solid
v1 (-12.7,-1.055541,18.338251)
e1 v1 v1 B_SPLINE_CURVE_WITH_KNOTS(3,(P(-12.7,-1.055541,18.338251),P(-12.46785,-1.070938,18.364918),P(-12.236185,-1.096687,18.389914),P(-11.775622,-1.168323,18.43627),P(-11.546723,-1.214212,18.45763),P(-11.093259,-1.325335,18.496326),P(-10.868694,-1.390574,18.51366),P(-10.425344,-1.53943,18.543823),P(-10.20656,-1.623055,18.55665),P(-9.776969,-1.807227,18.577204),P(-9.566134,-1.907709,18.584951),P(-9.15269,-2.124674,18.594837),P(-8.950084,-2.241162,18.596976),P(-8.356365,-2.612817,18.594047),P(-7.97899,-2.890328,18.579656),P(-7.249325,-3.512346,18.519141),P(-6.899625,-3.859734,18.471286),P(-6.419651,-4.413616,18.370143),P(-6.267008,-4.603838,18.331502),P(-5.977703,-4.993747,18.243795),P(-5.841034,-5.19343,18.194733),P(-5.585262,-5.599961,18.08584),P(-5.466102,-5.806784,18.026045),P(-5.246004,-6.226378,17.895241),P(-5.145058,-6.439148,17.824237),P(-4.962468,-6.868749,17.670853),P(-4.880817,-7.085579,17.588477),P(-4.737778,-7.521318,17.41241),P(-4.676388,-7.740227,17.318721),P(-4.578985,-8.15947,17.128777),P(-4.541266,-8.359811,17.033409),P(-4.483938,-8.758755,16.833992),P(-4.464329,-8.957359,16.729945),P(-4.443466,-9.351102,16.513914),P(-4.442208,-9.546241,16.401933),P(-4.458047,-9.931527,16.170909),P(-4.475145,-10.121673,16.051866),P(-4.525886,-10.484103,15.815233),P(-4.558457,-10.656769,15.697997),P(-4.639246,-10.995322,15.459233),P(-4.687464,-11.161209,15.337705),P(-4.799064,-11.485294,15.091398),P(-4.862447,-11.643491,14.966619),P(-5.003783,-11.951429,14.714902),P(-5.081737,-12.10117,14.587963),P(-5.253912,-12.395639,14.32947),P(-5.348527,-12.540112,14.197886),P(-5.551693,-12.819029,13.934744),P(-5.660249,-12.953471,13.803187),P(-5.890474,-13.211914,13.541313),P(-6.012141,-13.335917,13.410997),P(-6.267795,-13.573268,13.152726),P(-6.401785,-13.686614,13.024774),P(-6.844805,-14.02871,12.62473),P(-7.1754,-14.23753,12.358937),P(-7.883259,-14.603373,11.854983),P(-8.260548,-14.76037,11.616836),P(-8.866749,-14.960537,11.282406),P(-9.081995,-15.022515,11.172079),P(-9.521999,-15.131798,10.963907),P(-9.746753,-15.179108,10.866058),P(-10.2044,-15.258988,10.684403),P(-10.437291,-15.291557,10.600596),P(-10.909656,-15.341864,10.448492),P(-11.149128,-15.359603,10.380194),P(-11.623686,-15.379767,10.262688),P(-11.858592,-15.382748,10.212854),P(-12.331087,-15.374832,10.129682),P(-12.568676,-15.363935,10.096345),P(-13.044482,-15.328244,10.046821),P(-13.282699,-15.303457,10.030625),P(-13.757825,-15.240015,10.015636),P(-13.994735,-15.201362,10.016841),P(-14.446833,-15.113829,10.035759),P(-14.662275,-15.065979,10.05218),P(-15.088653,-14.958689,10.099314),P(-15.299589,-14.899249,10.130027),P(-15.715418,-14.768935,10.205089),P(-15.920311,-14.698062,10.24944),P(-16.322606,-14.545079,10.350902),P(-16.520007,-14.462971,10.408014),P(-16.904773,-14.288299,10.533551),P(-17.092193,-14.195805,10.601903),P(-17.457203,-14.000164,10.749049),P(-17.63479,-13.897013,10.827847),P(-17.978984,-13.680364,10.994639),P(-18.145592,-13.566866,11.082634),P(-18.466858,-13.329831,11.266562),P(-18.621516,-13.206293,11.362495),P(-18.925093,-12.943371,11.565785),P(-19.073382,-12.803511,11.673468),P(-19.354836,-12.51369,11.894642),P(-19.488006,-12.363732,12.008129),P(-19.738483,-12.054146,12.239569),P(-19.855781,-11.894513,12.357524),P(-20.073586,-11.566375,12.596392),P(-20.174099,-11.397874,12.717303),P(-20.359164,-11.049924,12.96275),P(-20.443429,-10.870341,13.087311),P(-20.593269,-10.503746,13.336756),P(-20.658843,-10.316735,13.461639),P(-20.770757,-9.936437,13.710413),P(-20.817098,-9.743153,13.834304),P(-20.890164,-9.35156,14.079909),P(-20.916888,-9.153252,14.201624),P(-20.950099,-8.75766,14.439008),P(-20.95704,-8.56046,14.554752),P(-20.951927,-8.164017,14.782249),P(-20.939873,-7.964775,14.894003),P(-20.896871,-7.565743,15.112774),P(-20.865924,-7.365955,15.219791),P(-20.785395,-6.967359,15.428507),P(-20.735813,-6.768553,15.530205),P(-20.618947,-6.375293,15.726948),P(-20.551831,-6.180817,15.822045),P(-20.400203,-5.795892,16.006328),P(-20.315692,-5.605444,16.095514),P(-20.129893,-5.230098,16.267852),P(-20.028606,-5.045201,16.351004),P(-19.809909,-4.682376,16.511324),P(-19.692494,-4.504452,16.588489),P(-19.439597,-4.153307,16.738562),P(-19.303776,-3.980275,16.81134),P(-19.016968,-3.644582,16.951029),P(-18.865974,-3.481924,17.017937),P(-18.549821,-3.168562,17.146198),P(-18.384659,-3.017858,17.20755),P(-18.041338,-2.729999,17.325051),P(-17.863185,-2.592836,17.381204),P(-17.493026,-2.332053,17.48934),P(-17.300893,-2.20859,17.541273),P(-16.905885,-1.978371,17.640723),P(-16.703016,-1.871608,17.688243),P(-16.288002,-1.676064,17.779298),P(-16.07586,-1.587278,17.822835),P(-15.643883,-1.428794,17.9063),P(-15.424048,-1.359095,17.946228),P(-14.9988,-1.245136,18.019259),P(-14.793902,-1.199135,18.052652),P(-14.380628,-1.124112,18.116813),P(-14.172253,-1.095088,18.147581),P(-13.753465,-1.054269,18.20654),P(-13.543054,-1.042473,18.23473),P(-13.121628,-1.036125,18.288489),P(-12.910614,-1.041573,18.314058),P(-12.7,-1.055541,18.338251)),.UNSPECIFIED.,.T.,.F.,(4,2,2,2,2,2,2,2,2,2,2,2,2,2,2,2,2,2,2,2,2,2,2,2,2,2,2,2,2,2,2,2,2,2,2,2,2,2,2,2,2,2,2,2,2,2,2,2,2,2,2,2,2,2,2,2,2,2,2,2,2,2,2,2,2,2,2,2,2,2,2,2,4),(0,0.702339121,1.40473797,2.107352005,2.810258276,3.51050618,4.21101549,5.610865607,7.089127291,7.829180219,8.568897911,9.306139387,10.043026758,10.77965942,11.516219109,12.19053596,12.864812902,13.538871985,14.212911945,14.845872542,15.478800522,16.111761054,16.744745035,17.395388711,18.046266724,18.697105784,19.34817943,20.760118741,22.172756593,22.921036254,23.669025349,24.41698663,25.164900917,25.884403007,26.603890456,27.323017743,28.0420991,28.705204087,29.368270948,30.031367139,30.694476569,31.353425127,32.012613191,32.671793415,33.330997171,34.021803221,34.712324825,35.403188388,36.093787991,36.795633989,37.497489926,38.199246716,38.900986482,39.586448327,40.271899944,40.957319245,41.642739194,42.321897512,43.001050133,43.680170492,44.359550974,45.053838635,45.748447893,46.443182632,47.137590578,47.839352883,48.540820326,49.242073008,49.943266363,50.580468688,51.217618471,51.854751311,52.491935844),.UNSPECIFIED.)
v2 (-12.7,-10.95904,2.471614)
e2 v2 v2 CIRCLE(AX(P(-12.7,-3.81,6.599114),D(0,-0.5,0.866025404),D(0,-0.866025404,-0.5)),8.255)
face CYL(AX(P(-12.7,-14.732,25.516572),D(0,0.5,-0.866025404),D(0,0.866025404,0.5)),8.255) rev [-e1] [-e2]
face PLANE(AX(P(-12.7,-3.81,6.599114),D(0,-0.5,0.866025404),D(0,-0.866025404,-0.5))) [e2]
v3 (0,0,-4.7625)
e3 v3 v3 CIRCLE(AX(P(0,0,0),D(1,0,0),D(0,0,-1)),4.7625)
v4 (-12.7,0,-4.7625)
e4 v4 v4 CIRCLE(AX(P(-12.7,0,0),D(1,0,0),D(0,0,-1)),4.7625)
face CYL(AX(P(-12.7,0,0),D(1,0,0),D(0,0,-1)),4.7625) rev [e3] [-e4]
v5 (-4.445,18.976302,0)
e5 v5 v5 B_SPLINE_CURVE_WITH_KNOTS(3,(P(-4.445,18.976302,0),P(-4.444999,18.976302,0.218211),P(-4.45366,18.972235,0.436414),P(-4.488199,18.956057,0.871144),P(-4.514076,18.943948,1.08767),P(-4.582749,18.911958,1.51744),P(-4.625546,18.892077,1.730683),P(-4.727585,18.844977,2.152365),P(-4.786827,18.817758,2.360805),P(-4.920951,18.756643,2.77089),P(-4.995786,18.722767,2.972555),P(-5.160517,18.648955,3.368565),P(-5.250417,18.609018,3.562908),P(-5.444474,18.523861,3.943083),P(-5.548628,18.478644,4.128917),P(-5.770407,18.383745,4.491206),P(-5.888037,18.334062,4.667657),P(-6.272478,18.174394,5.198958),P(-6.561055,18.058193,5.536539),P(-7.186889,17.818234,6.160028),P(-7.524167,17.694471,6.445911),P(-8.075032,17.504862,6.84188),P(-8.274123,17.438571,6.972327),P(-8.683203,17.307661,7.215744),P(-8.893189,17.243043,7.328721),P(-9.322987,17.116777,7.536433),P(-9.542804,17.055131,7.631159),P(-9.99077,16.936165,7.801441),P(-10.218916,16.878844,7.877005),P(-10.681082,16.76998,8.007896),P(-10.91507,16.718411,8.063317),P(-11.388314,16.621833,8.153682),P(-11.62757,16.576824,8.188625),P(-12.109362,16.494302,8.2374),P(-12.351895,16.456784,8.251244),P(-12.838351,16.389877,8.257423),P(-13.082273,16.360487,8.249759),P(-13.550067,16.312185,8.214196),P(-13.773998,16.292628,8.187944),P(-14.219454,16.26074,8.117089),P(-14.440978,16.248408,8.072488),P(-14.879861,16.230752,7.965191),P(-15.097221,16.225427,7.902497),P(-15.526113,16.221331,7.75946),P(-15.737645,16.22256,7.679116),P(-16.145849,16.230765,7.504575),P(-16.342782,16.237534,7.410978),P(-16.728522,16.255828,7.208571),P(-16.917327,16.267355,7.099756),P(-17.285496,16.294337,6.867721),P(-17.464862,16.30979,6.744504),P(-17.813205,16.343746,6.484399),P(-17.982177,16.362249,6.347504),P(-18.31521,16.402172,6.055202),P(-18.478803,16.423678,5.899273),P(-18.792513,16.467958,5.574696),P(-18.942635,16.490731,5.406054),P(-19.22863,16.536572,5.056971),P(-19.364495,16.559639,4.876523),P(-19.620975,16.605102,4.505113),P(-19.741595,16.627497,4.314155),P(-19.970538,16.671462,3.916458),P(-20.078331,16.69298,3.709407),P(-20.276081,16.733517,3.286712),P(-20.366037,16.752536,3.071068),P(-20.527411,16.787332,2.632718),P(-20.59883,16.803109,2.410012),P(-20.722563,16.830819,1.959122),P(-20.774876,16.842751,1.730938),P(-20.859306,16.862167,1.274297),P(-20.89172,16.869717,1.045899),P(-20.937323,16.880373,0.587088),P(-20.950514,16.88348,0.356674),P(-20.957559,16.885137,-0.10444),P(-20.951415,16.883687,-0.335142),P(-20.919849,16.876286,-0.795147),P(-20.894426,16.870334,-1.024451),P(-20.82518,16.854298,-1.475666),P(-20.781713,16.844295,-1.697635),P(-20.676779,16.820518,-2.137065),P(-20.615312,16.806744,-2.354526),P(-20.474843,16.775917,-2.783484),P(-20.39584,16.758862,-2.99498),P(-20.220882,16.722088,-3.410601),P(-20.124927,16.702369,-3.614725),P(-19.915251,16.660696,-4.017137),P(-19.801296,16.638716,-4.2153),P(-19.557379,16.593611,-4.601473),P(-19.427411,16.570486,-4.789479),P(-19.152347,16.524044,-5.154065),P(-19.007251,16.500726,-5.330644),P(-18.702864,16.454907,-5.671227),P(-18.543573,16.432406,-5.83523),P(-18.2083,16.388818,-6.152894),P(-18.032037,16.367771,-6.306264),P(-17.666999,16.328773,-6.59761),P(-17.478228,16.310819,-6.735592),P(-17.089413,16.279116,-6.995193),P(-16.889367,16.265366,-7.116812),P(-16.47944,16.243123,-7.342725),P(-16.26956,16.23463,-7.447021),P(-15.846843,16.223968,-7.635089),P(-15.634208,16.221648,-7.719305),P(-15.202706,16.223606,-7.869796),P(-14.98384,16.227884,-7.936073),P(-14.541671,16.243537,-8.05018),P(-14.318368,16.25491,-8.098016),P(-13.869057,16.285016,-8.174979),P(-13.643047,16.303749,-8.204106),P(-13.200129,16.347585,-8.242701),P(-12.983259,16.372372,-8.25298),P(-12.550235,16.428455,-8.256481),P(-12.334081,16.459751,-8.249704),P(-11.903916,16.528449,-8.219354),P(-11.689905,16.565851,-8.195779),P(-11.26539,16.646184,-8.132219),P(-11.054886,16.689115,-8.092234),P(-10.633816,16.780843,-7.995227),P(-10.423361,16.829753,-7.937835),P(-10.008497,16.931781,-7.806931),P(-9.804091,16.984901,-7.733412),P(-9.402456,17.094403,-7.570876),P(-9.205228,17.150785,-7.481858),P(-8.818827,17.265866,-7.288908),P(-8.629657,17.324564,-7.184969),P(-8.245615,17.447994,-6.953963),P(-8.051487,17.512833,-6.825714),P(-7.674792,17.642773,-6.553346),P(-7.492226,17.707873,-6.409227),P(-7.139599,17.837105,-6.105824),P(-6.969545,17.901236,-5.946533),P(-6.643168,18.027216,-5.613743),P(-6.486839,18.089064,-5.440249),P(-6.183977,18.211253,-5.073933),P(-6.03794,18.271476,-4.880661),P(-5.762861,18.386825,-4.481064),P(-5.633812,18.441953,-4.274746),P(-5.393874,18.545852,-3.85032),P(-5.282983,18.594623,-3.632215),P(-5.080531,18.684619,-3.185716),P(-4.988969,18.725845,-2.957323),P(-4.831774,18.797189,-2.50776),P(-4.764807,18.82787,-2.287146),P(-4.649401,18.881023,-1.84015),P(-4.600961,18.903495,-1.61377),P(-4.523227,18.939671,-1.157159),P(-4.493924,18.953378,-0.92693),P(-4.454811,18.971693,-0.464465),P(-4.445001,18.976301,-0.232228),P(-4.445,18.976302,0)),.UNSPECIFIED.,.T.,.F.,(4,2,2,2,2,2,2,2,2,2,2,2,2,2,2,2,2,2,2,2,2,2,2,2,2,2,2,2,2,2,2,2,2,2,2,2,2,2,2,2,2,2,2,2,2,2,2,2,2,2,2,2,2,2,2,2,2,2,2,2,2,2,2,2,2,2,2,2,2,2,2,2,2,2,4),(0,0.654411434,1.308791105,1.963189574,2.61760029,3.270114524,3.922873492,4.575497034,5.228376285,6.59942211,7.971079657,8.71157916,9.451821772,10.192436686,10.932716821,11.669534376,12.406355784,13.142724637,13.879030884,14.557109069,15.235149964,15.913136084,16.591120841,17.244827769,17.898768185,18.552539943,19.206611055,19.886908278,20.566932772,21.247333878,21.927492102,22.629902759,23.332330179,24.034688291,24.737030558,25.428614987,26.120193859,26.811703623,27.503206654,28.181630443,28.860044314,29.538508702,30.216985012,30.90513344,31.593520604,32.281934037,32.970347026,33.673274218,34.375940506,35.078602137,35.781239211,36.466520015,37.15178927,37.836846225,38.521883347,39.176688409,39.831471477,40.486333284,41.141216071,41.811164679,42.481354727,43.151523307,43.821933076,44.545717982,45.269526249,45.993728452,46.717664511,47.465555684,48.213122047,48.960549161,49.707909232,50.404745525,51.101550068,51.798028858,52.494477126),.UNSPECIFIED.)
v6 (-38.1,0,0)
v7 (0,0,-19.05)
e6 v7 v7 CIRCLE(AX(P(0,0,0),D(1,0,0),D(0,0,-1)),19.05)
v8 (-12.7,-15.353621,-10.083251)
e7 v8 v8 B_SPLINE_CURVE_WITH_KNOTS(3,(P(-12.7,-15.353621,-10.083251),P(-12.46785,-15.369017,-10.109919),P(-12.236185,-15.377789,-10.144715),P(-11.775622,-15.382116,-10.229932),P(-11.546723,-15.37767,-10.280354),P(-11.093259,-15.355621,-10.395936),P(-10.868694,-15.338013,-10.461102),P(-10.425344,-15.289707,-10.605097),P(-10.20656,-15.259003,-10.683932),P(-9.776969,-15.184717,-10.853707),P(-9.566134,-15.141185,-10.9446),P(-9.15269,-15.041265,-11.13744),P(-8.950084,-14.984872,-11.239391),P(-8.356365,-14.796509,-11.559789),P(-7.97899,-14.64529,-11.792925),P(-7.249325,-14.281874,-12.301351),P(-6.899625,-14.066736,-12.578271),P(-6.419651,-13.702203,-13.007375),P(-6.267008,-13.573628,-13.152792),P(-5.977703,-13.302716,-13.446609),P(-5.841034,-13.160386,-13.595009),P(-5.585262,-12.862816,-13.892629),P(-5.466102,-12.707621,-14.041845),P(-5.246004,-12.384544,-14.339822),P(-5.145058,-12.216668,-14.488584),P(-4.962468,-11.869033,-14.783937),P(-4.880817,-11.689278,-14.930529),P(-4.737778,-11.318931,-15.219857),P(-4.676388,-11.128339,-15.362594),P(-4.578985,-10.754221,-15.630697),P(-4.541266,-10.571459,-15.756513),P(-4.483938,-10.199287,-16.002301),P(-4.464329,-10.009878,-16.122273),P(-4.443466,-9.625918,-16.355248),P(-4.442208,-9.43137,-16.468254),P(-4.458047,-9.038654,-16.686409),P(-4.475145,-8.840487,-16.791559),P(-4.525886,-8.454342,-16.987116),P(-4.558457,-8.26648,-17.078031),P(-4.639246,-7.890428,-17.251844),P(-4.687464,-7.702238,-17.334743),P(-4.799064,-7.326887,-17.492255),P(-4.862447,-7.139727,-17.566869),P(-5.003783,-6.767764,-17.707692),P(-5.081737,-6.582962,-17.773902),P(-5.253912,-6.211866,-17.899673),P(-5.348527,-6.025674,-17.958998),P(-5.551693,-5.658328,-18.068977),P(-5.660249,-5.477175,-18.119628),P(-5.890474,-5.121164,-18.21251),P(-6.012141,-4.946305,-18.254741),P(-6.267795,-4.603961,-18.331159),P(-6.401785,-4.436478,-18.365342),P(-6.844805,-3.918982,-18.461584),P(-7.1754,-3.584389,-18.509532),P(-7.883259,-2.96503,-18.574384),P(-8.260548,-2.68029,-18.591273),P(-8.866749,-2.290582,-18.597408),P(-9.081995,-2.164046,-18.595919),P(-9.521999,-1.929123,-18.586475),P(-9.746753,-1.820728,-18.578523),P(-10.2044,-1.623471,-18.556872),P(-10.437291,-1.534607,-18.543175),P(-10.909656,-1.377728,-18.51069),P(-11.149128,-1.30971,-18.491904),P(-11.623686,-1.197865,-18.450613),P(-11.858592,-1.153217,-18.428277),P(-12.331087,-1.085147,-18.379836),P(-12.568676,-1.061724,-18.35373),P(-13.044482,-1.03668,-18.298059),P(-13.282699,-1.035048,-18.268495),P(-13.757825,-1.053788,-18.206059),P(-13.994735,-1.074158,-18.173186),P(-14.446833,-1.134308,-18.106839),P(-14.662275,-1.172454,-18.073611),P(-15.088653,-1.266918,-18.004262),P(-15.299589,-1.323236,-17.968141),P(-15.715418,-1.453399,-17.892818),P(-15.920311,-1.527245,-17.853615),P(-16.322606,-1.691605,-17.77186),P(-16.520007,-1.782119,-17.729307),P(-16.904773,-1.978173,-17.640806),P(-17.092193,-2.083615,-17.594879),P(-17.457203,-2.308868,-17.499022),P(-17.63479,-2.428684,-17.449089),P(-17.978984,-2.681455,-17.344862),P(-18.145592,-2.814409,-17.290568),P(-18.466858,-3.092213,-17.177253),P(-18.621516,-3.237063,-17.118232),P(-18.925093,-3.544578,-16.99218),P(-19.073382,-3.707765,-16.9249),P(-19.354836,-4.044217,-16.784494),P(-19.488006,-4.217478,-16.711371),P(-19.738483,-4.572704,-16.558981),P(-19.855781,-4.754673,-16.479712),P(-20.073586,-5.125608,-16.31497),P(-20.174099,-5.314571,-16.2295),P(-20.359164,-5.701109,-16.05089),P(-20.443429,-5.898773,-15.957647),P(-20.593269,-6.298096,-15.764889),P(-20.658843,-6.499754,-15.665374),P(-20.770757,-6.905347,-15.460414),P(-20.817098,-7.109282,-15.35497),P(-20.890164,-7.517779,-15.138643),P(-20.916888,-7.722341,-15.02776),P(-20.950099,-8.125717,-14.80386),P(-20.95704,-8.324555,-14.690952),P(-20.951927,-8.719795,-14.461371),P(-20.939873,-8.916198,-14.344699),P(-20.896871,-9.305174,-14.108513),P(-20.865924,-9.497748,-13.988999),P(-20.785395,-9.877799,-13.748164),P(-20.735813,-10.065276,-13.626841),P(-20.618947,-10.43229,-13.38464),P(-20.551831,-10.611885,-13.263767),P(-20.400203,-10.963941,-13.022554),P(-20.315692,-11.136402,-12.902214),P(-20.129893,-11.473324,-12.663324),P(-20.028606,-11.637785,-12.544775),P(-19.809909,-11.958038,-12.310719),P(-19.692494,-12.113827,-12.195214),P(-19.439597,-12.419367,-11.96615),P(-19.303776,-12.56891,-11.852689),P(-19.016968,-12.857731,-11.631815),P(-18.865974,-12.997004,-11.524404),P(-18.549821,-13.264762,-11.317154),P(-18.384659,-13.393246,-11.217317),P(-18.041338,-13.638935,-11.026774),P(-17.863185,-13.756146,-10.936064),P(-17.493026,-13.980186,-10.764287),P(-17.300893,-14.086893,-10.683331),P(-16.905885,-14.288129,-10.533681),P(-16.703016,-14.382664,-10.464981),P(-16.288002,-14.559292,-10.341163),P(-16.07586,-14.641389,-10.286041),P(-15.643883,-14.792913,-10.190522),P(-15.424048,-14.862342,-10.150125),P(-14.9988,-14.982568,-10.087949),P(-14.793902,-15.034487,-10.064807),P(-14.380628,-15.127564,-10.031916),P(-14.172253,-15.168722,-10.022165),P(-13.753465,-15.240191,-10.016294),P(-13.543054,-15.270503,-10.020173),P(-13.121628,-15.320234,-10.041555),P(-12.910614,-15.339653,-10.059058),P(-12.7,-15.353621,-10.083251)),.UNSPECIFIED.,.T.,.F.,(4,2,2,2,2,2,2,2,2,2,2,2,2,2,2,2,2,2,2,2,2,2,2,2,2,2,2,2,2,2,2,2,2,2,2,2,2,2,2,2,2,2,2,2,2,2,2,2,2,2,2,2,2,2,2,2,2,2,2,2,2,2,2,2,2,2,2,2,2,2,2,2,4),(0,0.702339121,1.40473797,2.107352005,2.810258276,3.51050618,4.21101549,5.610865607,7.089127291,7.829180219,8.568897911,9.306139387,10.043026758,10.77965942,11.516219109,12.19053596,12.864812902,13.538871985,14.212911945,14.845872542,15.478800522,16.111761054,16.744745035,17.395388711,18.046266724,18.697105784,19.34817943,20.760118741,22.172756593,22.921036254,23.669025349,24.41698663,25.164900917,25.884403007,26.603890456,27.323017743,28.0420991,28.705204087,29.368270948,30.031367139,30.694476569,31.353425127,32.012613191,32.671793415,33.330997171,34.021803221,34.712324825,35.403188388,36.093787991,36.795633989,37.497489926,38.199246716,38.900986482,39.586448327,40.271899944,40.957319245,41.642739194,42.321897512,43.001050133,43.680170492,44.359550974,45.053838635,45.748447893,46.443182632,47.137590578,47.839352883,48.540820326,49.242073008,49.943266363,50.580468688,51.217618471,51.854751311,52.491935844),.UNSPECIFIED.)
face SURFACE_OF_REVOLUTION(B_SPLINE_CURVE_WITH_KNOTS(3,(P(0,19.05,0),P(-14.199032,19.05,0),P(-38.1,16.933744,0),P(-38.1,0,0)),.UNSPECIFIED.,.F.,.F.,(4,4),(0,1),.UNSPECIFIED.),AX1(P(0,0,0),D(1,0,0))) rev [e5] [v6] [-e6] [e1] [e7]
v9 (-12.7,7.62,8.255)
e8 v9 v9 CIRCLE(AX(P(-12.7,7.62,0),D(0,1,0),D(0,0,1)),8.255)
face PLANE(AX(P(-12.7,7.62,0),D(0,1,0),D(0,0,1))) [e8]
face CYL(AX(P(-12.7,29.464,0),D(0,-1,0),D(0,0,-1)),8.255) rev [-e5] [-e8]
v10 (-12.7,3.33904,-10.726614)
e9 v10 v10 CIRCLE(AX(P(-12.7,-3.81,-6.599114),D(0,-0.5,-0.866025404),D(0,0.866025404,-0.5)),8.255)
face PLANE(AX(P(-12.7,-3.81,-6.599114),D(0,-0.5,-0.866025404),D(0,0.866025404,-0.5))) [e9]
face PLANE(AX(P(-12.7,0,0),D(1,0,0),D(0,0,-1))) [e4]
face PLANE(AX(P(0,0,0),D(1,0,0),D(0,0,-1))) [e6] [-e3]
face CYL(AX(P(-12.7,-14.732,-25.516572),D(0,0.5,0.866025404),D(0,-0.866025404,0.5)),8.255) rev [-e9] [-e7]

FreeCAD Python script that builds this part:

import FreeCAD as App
import Part
import Sketcher
Q = App.Units.Quantity

doc = App.newDocument("Part")
body = doc.addObject("PartDesign::Body", "Body")

# Sketch on XY plane
sketch1 = doc.addObject("Sketcher::SketchObject", "Sketch")
body.addObject(sketch1)
sketch1.AttachmentSupport = (doc.XY_Plane, [""])
sketch1.MapMode = "FlatFace"
sketch1.addGeometry([
    Part.LineSegment(App.Vector(-38.1, 0, 0), App.Vector(0, 0, 0)),
    Part.LineSegment(App.Vector(0, 0, 0), App.Vector(0, 19.05, 0)),
    Part.BSplineCurve([App.Vector(0, 19.05, 0), App.Vector(-14.199032, 19.05, 0), App.Vector(-38.1, 16.933744, 0), App.Vector(-38.1, 0, 0)], [4, 4], [0, 1], False, 3, [1, 1, 1, 1], False),
], False)
sketch1.addConstraint([
    Sketcher.Constraint("Block", 2),
    Sketcher.Constraint("Coincident", 0, 2, 1, 1),
    Sketcher.Constraint("Coincident", 1, 2, 2, 1),
    Sketcher.Constraint("Coincident", 2, 2, 0, 1),
    Sketcher.Constraint("Horizontal", 0),
    Sketcher.Constraint("Vertical", 1),
])
revolution = doc.addObject("PartDesign::Revolution", "Revolution")
body.addObject(revolution)
revolution.Profile = sketch1
revolution.ReferenceAxis = (sketch1, ["H_Axis"])
revolution.Angle = 360

# Sketch on YZ plane
sketch2 = doc.addObject("Sketcher::SketchObject", "Sketch001")
body.addObject(sketch2)
sketch2.AttachmentSupport = (doc.YZ_Plane, [""])
sketch2.MapMode = "FlatFace"
sketch2.addGeometry(Part.Circle(App.Vector(0, 0, 0), App.Vector(0, 0, 1), 4.7625), False)
sketch2.addConstraint([
    Sketcher.Constraint("Coincident", 0, 3, -1, 1),
    Sketcher.Constraint("Diameter", 0, Q("0.375 in")),
])
pocket1 = doc.addObject("PartDesign::Pocket", "Pocket")
body.addObject(pocket1)
pocket1.Profile = sketch2
pocket1.Length = Q("0.5 in")

# Sketch on XZ plane
sketch3 = doc.addObject("Sketcher::SketchObject", "Sketch002")
body.addObject(sketch3)
sketch3.AttachmentSupport = (doc.XZ_Plane, [""])
sketch3.MapMode = "FlatFace"
sketch3.AttachmentOffset = App.Placement(App.Vector(0, 0, -0.3 * 25.4), App.Rotation())
sketch3.addGeometry(Part.Circle(App.Vector(-12.7, 0, 0), App.Vector(0, 0, 1), 8.255), False)
sketch3.addConstraint([
    Sketcher.Constraint("PointOnObject", 0, 3, -1),
    Sketcher.Constraint("Diameter", 0, Q("0.65 in")),
    Sketcher.Constraint("DistanceX", 0, 3, -1, 1, Q("0.5 in")),
])
pocket2 = doc.addObject("PartDesign::Pocket", "Pocket001")
body.addObject(pocket2)
pocket2.Profile = sketch3
pocket2.Length = Q("0.86 in")
doc.recompute()

polarpattern = doc.addObject("PartDesign::PolarPattern", "PolarPattern")
body.addObject(polarpattern)
polarpattern.Originals = [pocket2]
polarpattern.Axis = (doc.X_Axis, [""])
polarpattern.Angle = 360
polarpattern.Occurrences = 3
body.Tip = polarpattern

doc.recompute()
